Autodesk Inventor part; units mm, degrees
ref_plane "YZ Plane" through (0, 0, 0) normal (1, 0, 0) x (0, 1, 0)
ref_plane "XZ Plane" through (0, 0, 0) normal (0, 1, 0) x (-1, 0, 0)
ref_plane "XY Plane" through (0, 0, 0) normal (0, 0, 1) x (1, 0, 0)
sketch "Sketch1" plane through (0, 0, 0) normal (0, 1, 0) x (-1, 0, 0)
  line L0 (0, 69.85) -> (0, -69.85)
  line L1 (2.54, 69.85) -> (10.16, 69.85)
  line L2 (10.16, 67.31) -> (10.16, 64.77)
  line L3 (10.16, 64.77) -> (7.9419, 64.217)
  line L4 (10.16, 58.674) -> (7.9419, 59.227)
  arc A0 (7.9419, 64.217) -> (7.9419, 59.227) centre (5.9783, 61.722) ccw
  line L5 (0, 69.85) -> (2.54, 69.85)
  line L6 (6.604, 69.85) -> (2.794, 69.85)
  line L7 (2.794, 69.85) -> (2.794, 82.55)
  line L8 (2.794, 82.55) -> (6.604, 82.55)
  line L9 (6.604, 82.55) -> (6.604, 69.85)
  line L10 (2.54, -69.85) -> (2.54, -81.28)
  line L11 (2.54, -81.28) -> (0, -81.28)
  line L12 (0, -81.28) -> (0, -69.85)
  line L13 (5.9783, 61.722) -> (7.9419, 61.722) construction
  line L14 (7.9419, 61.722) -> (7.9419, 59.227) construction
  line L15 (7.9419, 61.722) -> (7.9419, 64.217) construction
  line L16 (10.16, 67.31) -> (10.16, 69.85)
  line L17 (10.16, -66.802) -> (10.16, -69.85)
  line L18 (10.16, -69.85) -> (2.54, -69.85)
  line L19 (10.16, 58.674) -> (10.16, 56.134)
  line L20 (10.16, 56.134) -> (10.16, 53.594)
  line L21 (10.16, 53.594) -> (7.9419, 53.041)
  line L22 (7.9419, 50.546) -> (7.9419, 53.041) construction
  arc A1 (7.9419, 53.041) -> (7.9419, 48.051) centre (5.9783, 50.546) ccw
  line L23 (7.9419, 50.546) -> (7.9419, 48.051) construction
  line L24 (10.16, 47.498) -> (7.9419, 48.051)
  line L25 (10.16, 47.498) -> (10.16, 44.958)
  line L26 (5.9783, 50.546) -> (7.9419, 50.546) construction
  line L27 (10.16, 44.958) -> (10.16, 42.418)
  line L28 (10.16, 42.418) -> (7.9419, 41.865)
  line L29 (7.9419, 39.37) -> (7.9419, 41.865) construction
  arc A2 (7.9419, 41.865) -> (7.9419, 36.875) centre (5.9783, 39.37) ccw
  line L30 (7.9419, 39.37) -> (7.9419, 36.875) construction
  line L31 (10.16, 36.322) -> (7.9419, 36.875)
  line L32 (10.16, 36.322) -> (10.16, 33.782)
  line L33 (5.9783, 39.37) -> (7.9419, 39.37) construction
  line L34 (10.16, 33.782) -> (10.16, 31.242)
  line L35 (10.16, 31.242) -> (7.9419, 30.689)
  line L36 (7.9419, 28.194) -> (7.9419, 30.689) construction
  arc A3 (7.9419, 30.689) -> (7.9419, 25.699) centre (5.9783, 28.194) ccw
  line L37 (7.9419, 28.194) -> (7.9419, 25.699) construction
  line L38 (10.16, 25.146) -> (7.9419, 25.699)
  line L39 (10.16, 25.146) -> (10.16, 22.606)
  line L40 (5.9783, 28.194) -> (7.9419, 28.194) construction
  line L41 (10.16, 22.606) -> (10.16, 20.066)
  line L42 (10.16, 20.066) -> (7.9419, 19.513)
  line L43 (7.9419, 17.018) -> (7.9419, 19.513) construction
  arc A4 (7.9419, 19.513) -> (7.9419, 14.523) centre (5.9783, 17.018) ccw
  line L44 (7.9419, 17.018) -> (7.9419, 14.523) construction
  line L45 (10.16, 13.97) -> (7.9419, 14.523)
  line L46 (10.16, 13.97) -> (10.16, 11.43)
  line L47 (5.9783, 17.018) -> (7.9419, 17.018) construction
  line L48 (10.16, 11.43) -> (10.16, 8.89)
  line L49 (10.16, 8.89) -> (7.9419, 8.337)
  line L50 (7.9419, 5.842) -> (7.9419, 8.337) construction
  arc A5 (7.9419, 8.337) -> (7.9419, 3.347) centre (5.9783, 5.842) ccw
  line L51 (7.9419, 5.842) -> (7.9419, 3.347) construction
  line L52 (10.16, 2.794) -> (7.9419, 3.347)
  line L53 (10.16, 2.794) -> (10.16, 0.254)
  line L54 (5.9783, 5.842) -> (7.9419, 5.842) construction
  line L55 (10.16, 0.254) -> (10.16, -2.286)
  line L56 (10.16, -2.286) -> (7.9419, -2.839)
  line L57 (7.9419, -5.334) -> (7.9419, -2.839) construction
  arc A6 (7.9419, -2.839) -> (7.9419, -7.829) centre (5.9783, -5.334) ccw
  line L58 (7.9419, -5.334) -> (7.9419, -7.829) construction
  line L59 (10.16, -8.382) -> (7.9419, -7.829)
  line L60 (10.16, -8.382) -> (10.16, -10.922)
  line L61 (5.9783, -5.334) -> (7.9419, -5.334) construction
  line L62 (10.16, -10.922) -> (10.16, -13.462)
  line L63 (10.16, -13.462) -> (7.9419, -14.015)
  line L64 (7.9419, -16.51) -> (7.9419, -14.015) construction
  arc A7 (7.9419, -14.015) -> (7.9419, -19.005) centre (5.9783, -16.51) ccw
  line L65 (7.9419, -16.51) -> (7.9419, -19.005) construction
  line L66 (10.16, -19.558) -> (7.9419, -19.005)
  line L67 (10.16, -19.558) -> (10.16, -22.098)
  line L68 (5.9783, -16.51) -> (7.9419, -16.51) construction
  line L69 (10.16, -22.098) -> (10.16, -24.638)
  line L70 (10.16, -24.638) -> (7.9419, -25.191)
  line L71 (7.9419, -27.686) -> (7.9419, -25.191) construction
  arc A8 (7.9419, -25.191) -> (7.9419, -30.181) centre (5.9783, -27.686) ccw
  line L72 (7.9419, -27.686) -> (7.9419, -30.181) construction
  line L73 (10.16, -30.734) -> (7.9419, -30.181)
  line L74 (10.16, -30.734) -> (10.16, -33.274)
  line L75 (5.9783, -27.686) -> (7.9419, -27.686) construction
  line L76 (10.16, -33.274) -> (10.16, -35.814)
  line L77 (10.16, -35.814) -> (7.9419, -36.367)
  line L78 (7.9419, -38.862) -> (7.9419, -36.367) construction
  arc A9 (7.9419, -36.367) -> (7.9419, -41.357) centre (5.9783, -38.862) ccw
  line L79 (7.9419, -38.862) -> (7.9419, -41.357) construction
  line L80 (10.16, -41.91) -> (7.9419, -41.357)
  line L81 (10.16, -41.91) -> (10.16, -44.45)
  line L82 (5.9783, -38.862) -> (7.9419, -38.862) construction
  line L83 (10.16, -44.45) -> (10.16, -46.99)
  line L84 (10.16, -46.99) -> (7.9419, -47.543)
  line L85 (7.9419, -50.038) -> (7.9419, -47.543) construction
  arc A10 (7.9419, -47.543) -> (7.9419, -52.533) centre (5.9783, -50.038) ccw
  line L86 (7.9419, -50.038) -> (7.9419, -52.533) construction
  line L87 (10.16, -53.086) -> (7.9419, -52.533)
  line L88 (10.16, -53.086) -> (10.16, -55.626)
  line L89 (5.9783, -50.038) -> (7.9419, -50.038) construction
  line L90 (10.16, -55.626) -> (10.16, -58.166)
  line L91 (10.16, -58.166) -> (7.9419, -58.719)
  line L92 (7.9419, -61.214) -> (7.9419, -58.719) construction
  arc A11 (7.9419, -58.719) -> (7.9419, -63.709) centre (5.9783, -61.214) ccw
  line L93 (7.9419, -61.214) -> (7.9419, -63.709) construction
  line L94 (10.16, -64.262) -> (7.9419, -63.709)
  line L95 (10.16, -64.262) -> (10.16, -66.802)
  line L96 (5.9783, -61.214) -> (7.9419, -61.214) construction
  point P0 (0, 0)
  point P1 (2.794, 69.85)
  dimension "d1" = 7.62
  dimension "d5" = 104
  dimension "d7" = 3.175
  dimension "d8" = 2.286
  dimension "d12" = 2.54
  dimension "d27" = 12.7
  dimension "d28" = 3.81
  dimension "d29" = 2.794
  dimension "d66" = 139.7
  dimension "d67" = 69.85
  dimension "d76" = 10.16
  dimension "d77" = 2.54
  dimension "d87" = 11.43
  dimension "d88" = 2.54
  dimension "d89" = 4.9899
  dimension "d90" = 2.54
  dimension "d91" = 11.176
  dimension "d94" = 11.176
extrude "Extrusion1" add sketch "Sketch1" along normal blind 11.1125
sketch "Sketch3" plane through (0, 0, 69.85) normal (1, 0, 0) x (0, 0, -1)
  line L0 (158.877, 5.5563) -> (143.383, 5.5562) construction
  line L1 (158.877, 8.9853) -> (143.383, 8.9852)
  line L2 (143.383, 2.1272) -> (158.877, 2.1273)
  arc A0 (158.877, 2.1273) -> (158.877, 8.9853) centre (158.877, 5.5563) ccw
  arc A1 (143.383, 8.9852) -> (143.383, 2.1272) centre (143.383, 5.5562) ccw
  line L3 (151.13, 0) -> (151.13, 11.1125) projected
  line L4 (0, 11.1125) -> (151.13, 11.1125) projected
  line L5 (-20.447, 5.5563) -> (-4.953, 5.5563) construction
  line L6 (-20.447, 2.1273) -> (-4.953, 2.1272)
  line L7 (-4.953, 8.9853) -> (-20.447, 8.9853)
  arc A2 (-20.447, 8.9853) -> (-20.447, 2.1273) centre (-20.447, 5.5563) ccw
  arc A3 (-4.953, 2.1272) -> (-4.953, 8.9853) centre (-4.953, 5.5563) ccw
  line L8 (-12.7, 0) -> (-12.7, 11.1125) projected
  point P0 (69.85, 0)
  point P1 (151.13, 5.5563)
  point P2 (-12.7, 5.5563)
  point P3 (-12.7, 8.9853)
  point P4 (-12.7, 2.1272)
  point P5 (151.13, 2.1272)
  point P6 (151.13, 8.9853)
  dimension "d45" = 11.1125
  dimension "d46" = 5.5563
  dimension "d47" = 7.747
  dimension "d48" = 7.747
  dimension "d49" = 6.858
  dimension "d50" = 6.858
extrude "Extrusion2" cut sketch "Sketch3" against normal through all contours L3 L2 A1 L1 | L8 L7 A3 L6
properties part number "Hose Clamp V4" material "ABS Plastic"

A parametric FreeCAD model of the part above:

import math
import FreeCAD as App
import Part
import Sketcher
from FreeCAD import Vector
Q = App.Units.Quantity

doc = App.newDocument("Part")
body = doc.addObject("PartDesign::Body", "Body")

# Sketch on XZ plane
sketch1 = body.newObject("Sketcher::SketchObject", "Sketch")
sketch1.AttachmentSupport = (doc.getObject("XZ_Plane"), [""])
sketch1.MapMode = "FlatFace"
sketch1.addGeometry([
    Part.LineSegment(Vector(0, 69.85, 0), Vector(0, -81.28, 0)),  # 0
    Part.LineSegment(Vector(0, -81.28, 0), Vector(-2.54, -81.28, 0)),  # 1
    Part.LineSegment(Vector(-2.54, -81.28, 0), Vector(-2.54, -69.85, 0)),  # 2
    Part.LineSegment(Vector(-2.54, -69.85, 0), Vector(-10.16, -69.85, 0)),  # 3
    Part.LineSegment(Vector(-10.16, -69.85, 0), Vector(-10.16, -64.262, 0)),  # 4
    Part.LineSegment(Vector(-10.16, -64.262, 0), Vector(-7.9419, -63.709, 0)),  # 5
    Part.ArcOfCircle(Part.Circle(Vector(-5.9783, -61.214, 0), Vector(0, 0, 1), 3.17502), math.radians(-128.203242), math.radians(128.203242)),  # 6
    Part.LineSegment(Vector(-7.9419, -58.719, 0), Vector(-10.16, -58.166, 0)),  # 7
    Part.LineSegment(Vector(-10.16, -58.166, 0), Vector(-10.16, -53.086, 0)),  # 8
    Part.LineSegment(Vector(-10.16, -53.086, 0), Vector(-7.9419, -52.533, 0)),  # 9
    Part.ArcOfCircle(Part.Circle(Vector(-5.9783, -50.038, 0), Vector(0, 0, 1), 3.17502), math.radians(-128.203242), math.radians(128.203242)),  # 10
    Part.LineSegment(Vector(-7.9419, -47.543, 0), Vector(-10.16, -46.99, 0)),  # 11
    Part.LineSegment(Vector(-10.16, -46.99, 0), Vector(-10.16, -41.91, 0)),  # 12
    Part.LineSegment(Vector(-10.16, -41.91, 0), Vector(-7.9419, -41.357, 0)),  # 13
    Part.ArcOfCircle(Part.Circle(Vector(-5.9783, -38.862, 0), Vector(0, 0, 1), 3.17502), math.radians(-128.203242), math.radians(128.203242)),  # 14
    Part.LineSegment(Vector(-7.9419, -36.367, 0), Vector(-10.16, -35.814, 0)),  # 15
    Part.LineSegment(Vector(-10.16, -35.814, 0), Vector(-10.16, -30.734, 0)),  # 16
    Part.LineSegment(Vector(-10.16, -30.734, 0), Vector(-7.9419, -30.181, 0)),  # 17
    Part.ArcOfCircle(Part.Circle(Vector(-5.9783, -27.686, 0), Vector(0, 0, 1), 3.17502), math.radians(-128.203242), math.radians(128.203242)),  # 18
    Part.LineSegment(Vector(-7.9419, -25.191, 0), Vector(-10.16, -24.638, 0)),  # 19
    Part.LineSegment(Vector(-10.16, -24.638, 0), Vector(-10.16, -19.558, 0)),  # 20
    Part.LineSegment(Vector(-10.16, -19.558, 0), Vector(-7.9419, -19.005, 0)),  # 21
    Part.ArcOfCircle(Part.Circle(Vector(-5.9783, -16.51, 0), Vector(0, 0, 1), 3.17502), math.radians(-128.203242), math.radians(128.203242)),  # 22
    Part.LineSegment(Vector(-7.9419, -14.015, 0), Vector(-10.16, -13.462, 0)),  # 23
    Part.LineSegment(Vector(-10.16, -13.462, 0), Vector(-10.16, -8.382, 0)),  # 24
    Part.LineSegment(Vector(-10.16, -8.382, 0), Vector(-7.9419, -7.829, 0)),  # 25
    Part.ArcOfCircle(Part.Circle(Vector(-5.9783, -5.334, 0), Vector(0, 0, 1), 3.17502), math.radians(-128.203242), math.radians(128.203242)),  # 26
    Part.LineSegment(Vector(-7.9419, -2.839, 0), Vector(-10.16, -2.286, 0)),  # 27
    Part.LineSegment(Vector(-10.16, -2.286, 0), Vector(-10.16, 2.794, 0)),  # 28
    Part.LineSegment(Vector(-10.16, 2.794, 0), Vector(-7.9419, 3.347, 0)),  # 29
    Part.ArcOfCircle(Part.Circle(Vector(-5.9783, 5.842, 0), Vector(0, 0, 1), 3.17502), math.radians(-128.203242), math.radians(128.203242)),  # 30
    Part.LineSegment(Vector(-7.9419, 8.337, 0), Vector(-10.16, 8.89, 0)),  # 31
    Part.LineSegment(Vector(-10.16, 8.89, 0), Vector(-10.16, 13.97, 0)),  # 32
    Part.LineSegment(Vector(-10.16, 13.97, 0), Vector(-7.9419, 14.523, 0)),  # 33
    Part.ArcOfCircle(Part.Circle(Vector(-5.9783, 17.018, 0), Vector(0, 0, 1), 3.17502), math.radians(-128.203242), math.radians(128.203242)),  # 34
    Part.LineSegment(Vector(-7.9419, 19.513, 0), Vector(-10.16, 20.066, 0)),  # 35
    Part.LineSegment(Vector(-10.16, 20.066, 0), Vector(-10.16, 25.146, 0)),  # 36
    Part.LineSegment(Vector(-10.16, 25.146, 0), Vector(-7.9419, 25.699, 0)),  # 37
    Part.ArcOfCircle(Part.Circle(Vector(-5.9783, 28.194, 0), Vector(0, 0, 1), 3.17502), math.radians(-128.203242), math.radians(128.203242)),  # 38
    Part.LineSegment(Vector(-7.9419, 30.689, 0), Vector(-10.16, 31.242, 0)),  # 39
    Part.LineSegment(Vector(-10.16, 31.242, 0), Vector(-10.16, 36.322, 0)),  # 40
    Part.LineSegment(Vector(-10.16, 36.322, 0), Vector(-7.9419, 36.875, 0)),  # 41
    Part.ArcOfCircle(Part.Circle(Vector(-5.9783, 39.37, 0), Vector(0, 0, 1), 3.17502), math.radians(-128.203242), math.radians(128.203242)),  # 42
    Part.LineSegment(Vector(-7.9419, 41.865, 0), Vector(-10.16, 42.418, 0)),  # 43
    Part.LineSegment(Vector(-10.16, 42.418, 0), Vector(-10.16, 47.498, 0)),  # 44
    Part.LineSegment(Vector(-10.16, 47.498, 0), Vector(-7.9419, 48.051, 0)),  # 45
    Part.ArcOfCircle(Part.Circle(Vector(-5.9783, 50.546, 0), Vector(0, 0, 1), 3.17502), math.radians(-128.203242), math.radians(128.203242)),  # 46
    Part.LineSegment(Vector(-7.9419, 53.041, 0), Vector(-10.16, 53.594, 0)),  # 47
    Part.LineSegment(Vector(-10.16, 53.594, 0), Vector(-10.16, 58.674, 0)),  # 48
    Part.LineSegment(Vector(-10.16, 58.674, 0), Vector(-7.9419, 59.227, 0)),  # 49
    Part.ArcOfCircle(Part.Circle(Vector(-5.9783, 61.722, 0), Vector(0, 0, 1), 3.17502), math.radians(-128.203242), math.radians(128.203242)),  # 50
    Part.LineSegment(Vector(-7.9419, 64.217, 0), Vector(-10.16, 64.77, 0)),  # 51
    Part.LineSegment(Vector(-10.16, 64.77, 0), Vector(-10.16, 69.85, 0)),  # 52
    Part.LineSegment(Vector(-10.16, 69.85, 0), Vector(-6.604, 69.85, 0)),  # 53
    Part.LineSegment(Vector(-6.604, 69.85, 0), Vector(-6.604, 82.55, 0)),  # 54
    Part.LineSegment(Vector(-6.604, 82.55, 0), Vector(-2.794, 82.55, 0)),  # 55
    Part.LineSegment(Vector(-2.794, 82.55, 0), Vector(-2.794, 69.85, 0)),  # 56
    Part.LineSegment(Vector(-2.794, 69.85, 0), Vector(0, 69.85, 0)),  # 57
], False)
sketch1.addConstraint([
    Sketcher.Constraint("Coincident", 0, 2, 1, 1),
    Sketcher.Constraint("Coincident", 1, 2, 2, 1),
    Sketcher.Constraint("Coincident", 2, 2, 3, 1),
    Sketcher.Constraint("Coincident", 3, 2, 4, 1),
    Sketcher.Constraint("Coincident", 4, 2, 5, 1),
    Sketcher.Constraint("Coincident", 5, 2, 6, 1),
    Sketcher.Constraint("Coincident", 6, 2, 7, 1),
    Sketcher.Constraint("Coincident", 7, 2, 8, 1),
    Sketcher.Constraint("Coincident", 8, 2, 9, 1),
    Sketcher.Constraint("Coincident", 9, 2, 10, 1),
    Sketcher.Constraint("Coincident", 10, 2, 11, 1),
    Sketcher.Constraint("Coincident", 11, 2, 12, 1),
    Sketcher.Constraint("Coincident", 12, 2, 13, 1),
    Sketcher.Constraint("Coincident", 13, 2, 14, 1),
    Sketcher.Constraint("Coincident", 14, 2, 15, 1),
    Sketcher.Constraint("Coincident", 15, 2, 16, 1),
    Sketcher.Constraint("Coincident", 16, 2, 17, 1),
    Sketcher.Constraint("Coincident", 17, 2, 18, 1),
    Sketcher.Constraint("Coincident", 18, 2, 19, 1),
    Sketcher.Constraint("Coincident", 19, 2, 20, 1),
    Sketcher.Constraint("Coincident", 20, 2, 21, 1),
    Sketcher.Constraint("Coincident", 21, 2, 22, 1),
    Sketcher.Constraint("Coincident", 22, 2, 23, 1),
    Sketcher.Constraint("Coincident", 23, 2, 24, 1),
    Sketcher.Constraint("Coincident", 24, 2, 25, 1),
    Sketcher.Constraint("Coincident", 25, 2, 26, 1),
    Sketcher.Constraint("Coincident", 26, 2, 27, 1),
    Sketcher.Constraint("Coincident", 27, 2, 28, 1),
    Sketcher.Constraint("Coincident", 28, 2, 29, 1),
    Sketcher.Constraint("Coincident", 29, 2, 30, 1),
    Sketcher.Constraint("Coincident", 30, 2, 31, 1),
    Sketcher.Constraint("Coincident", 31, 2, 32, 1),
    Sketcher.Constraint("Coincident", 32, 2, 33, 1),
    Sketcher.Constraint("Coincident", 33, 2, 34, 1),
    Sketcher.Constraint("Coincident", 34, 2, 35, 1),
    Sketcher.Constraint("Coincident", 35, 2, 36, 1),
    Sketcher.Constraint("Coincident", 36, 2, 37, 1),
    Sketcher.Constraint("Coincident", 37, 2, 38, 1),
    Sketcher.Constraint("Coincident", 38, 2, 39, 1),
    Sketcher.Constraint("Coincident", 39, 2, 40, 1),
    Sketcher.Constraint("Coincident", 40, 2, 41, 1),
    Sketcher.Constraint("Coincident", 41, 2, 42, 1),
    Sketcher.Constraint("Coincident", 42, 2, 43, 1),
    Sketcher.Constraint("Coincident", 43, 2, 44, 1),
    Sketcher.Constraint("Coincident", 44, 2, 45, 1),
    Sketcher.Constraint("Coincident", 45, 2, 46, 1),
    Sketcher.Constraint("Coincident", 46, 2, 47, 1),
    Sketcher.Constraint("Coincident", 47, 2, 48, 1),
    Sketcher.Constraint("Coincident", 48, 2, 49, 1),
    Sketcher.Constraint("Coincident", 49, 2, 50, 1),
    Sketcher.Constraint("Coincident", 50, 2, 51, 1),
    Sketcher.Constraint("Coincident", 51, 2, 52, 1),
    Sketcher.Constraint("Coincident", 52, 2, 53, 1),
    Sketcher.Constraint("Coincident", 53, 2, 54, 1),
    Sketcher.Constraint("Coincident", 54, 2, 55, 1),
    Sketcher.Constraint("Coincident", 55, 2, 56, 1),
    Sketcher.Constraint("Coincident", 56, 2, 57, 1),
    Sketcher.Constraint("Coincident", 57, 2, 0, 1),
    Sketcher.Constraint("Vertical", 0),
    Sketcher.Constraint("Horizontal", 1),
    Sketcher.Constraint("Vertical", 2),
    Sketcher.Constraint("Horizontal", 3),
    Sketcher.Constraint("Vertical", 4),
    Sketcher.Constraint("Vertical", 8),
    Sketcher.Constraint("Vertical", 12),
    Sketcher.Constraint("Vertical", 16),
    Sketcher.Constraint("Vertical", 20),
    Sketcher.Constraint("Vertical", 24),
    Sketcher.Constraint("Vertical", 28),
    Sketcher.Constraint("Vertical", 32),
    Sketcher.Constraint("Vertical", 36),
    Sketcher.Constraint("Vertical", 40),
    Sketcher.Constraint("Vertical", 44),
    Sketcher.Constraint("Vertical", 48),
    Sketcher.Constraint("Vertical", 52),
    Sketcher.Constraint("Horizontal", 53),
    Sketcher.Constraint("Vertical", 54),
    Sketcher.Constraint("Horizontal", 55),
    Sketcher.Constraint("Vertical", 56),
    Sketcher.Constraint("Horizontal", 57),
    Sketcher.Constraint("Equal", 6, 10),
    Sketcher.Constraint("Equal", 10, 14),
    Sketcher.Constraint("Equal", 14, 18),
    Sketcher.Constraint("Equal", 18, 22),
    Sketcher.Constraint("Equal", 22, 26),
    Sketcher.Constraint("Equal", 26, 30),
    Sketcher.Constraint("Equal", 30, 34),
    Sketcher.Constraint("Equal", 34, 38),
    Sketcher.Constraint("Equal", 38, 42),
    Sketcher.Constraint("Equal", 42, 46),
    Sketcher.Constraint("Equal", 46, 50),
    Sketcher.Constraint("Symmetric", 3, 2, 52, 2, -1),
    Sketcher.Constraint("PointOnObject", 0, 2, -2),
    Sketcher.Constraint("Parallel", 5, 9),
    Sketcher.Constraint("Parallel", 7, 11),
    Sketcher.Constraint("Parallel", 9, 13),
    Sketcher.Constraint("Parallel", 11, 15),
    Sketcher.Constraint("Parallel", 13, 17),
    Sketcher.Constraint("Parallel", 15, 19),
    Sketcher.Constraint("Parallel", 17, 21),
    Sketcher.Constraint("Parallel", 19, 23),
    Sketcher.Constraint("Parallel", 21, 25),
    Sketcher.Constraint("Parallel", 23, 27),
    Sketcher.Constraint("Parallel", 25, 29),
    Sketcher.Constraint("Parallel", 27, 31),
    Sketcher.Constraint("Parallel", 29, 33),
    Sketcher.Constraint("Parallel", 31, 35),
    Sketcher.Constraint("Parallel", 33, 37),
    Sketcher.Constraint("Parallel", 35, 39),
    Sketcher.Constraint("Parallel", 37, 41),
    Sketcher.Constraint("Parallel", 39, 43),
    Sketcher.Constraint("Parallel", 41, 45),
    Sketcher.Constraint("Parallel", 43, 47),
    Sketcher.Constraint("Parallel", 45, 49),
    Sketcher.Constraint("Parallel", 47, 51),
    Sketcher.Constraint("Horizontal", 53, 2, 56, 2),
    Sketcher.Constraint("Vertical", 6, 3, 10, 3),
    Sketcher.Constraint("Vertical", 10, 3, 14, 3),
    Sketcher.Constraint("Vertical", 14, 3, 18, 3),
    Sketcher.Constraint("Vertical", 18, 3, 22, 3),
    Sketcher.Constraint("Vertical", 22, 3, 26, 3),
    Sketcher.Constraint("Vertical", 26, 3, 30, 3),
    Sketcher.Constraint("Vertical", 30, 3, 34, 3),
    Sketcher.Constraint("Vertical", 34, 3, 38, 3),
    Sketcher.Constraint("Vertical", 38, 3, 42, 3),
    Sketcher.Constraint("Vertical", 42, 3, 46, 3),
    Sketcher.Constraint("Vertical", 46, 3, 50, 3),
    Sketcher.Constraint("Vertical", 5, 2, 6, 2),
    Sketcher.Constraint("Vertical", 4, 2, 7, 2),
    Sketcher.Constraint("Vertical", 6, 2, 9, 2),
    Sketcher.Constraint("Vertical", 9, 2, 10, 2),
    Sketcher.Constraint("Vertical", 8, 2, 11, 2),
    Sketcher.Constraint("Vertical", 10, 2, 13, 2),
    Sketcher.Constraint("Vertical", 13, 2, 14, 2),
    Sketcher.Constraint("Vertical", 12, 2, 15, 2),
    Sketcher.Constraint("Vertical", 14, 2, 17, 2),
    Sketcher.Constraint("Vertical", 17, 2, 18, 2),
    Sketcher.Constraint("Vertical", 16, 2, 19, 2),
    Sketcher.Constraint("Vertical", 18, 2, 21, 2),
    Sketcher.Constraint("Vertical", 21, 2, 22, 2),
    Sketcher.Constraint("Vertical", 20, 2, 23, 2),
    Sketcher.Constraint("Vertical", 22, 2, 25, 2),
    Sketcher.Constraint("Vertical", 25, 2, 26, 2),
    Sketcher.Constraint("Vertical", 24, 2, 27, 2),
    Sketcher.Constraint("Vertical", 26, 2, 29, 2),
    Sketcher.Constraint("Vertical", 29, 2, 30, 2),
    Sketcher.Constraint("Vertical", 28, 2, 31, 2),
    Sketcher.Constraint("Vertical", 30, 2, 33, 2),
    Sketcher.Constraint("Vertical", 33, 2, 34, 2),
    Sketcher.Constraint("Vertical", 32, 2, 35, 2),
    Sketcher.Constraint("Vertical", 34, 2, 37, 2),
    Sketcher.Constraint("Vertical", 37, 2, 38, 2),
    Sketcher.Constraint("Vertical", 36, 2, 39, 2),
    Sketcher.Constraint("Vertical", 38, 2, 41, 2),
    Sketcher.Constraint("Vertical", 41, 2, 42, 2),
    Sketcher.Constraint("Vertical", 40, 2, 43, 2),
    Sketcher.Constraint("Vertical", 42, 2, 45, 2),
    Sketcher.Constraint("Vertical", 45, 2, 46, 2),
    Sketcher.Constraint("Vertical", 44, 2, 47, 2),
    Sketcher.Constraint("Vertical", 46, 2, 49, 2),
    Sketcher.Constraint("Vertical", 49, 2, 50, 2),
    Sketcher.Constraint("Equal", 8, 12),
    Sketcher.Constraint("Equal", 12, 16),
    Sketcher.Constraint("Equal", 16, 20),
    Sketcher.Constraint("Equal", 20, 24),
    Sketcher.Constraint("Equal", 24, 28),
    Sketcher.Constraint("Equal", 28, 32),
    Sketcher.Constraint("Equal", 32, 36),
    Sketcher.Constraint("Equal", 36, 40),
    Sketcher.Constraint("Equal", 40, 44),
    Sketcher.Constraint("Equal", 44, 48),
    Sketcher.Constraint("Equal", 48, 52),
    Sketcher.Constraint("Equal", 5, 7),
    Sketcher.Constraint("DistanceX", 1, 2, 1, 1, Q("0.1 in")),
    Sketcher.Constraint("DistanceX", 3, 2, 3, 1, Q("0.3 in")),
    Sketcher.Constraint("DistanceY", 54, 1, 54, 2, Q("0.5 in")),
    Sketcher.Constraint("Radius", 6, Q("0.125 in")),
    Sketcher.Constraint("DistanceX", 55, 1, 55, 2, Q("0.15 in")),
    Sketcher.Constraint("DistanceX", 57, 1, 57, 2, Q("0.11 in")),
    Sketcher.Constraint("DistanceY", 2, 1, 2, 2, Q("0.45 in")),
    Sketcher.Constraint("Distance", 5, Q("0.09 in")),
    Sketcher.Constraint("DistanceY", 2, 2, -1, 1, Q("2.75 in")),
    Sketcher.Constraint("DistanceY", 27, 2, -1, 1, Q("0.09 in")),
    Sketcher.Constraint("DistanceY", -1, 1, 28, 2, Q("0.11 in")),
    Sketcher.Constraint("Angle", 5, Q("13.9992 deg")),
])
pad1 = body.newObject("PartDesign::Pad", "Pad")
pad1.Profile = sketch1
pad1.Length = Q("0.4375 in")
pad1.Reversed = True

# Sketch on YZ plane
sketch2 = body.newObject("Sketcher::SketchObject", "Sketch001")
sketch2.AttachmentSupport = (doc.getObject("YZ_Plane"), [""])
sketch2.MapMode = "FlatFace"
sketch2.addGeometry([
    Part.LineSegment(Vector(2.12725, -81.28, 0), Vector(8.98525, -81.28, 0)),  # 0
    Part.LineSegment(Vector(8.98525, -81.28, 0), Vector(8.9852, -73.533, 0)),  # 1
    Part.ArcOfCircle(Part.Circle(Vector(5.5562, -73.533, 0), Vector(0, 0, 1), 3.429), math.radians(0), math.radians(180)),  # 2
    Part.LineSegment(Vector(2.1272, -73.533, 0), Vector(2.12725, -81.28, 0)),  # 3
    Part.LineSegment(Vector(8.9853, 82.55, 0), Vector(2.12725, 82.55, 0)),  # 4
    Part.LineSegment(Vector(2.12725, 82.55, 0), Vector(2.1272, 74.803, 0)),  # 5
    Part.ArcOfCircle(Part.Circle(Vector(5.5563, 74.803, 0), Vector(0, 0, 1), 3.4291), math.radians(180), math.radians(360)),  # 6
    Part.LineSegment(Vector(8.9853, 74.803, 0), Vector(8.9853, 82.55, 0)),  # 7
], False)
sketch2.addConstraint([
    Sketcher.Constraint("Coincident", 0, 2, 1, 1),
    Sketcher.Constraint("Tangent", 1, 2, 2, 1),
    Sketcher.Constraint("Tangent", 2, 2, 3, 1),
    Sketcher.Constraint("Coincident", 3, 2, 0, 1),
    Sketcher.Constraint("Coincident", 4, 2, 5, 1),
    Sketcher.Constraint("Tangent", 5, 2, 6, 1),
    Sketcher.Constraint("Tangent", 6, 2, 7, 1),
    Sketcher.Constraint("Coincident", 7, 2, 4, 1),
    Sketcher.Constraint("Horizontal", 0),
    Sketcher.Constraint("Vertical", 1),
    Sketcher.Constraint("Vertical", 3),
    Sketcher.Constraint("Horizontal", 4),
    Sketcher.Constraint("Vertical", 5),
    Sketcher.Constraint("Vertical", 7),
    Sketcher.Constraint("Equal", 2, 6),
    Sketcher.Constraint("Vertical", 2, 3, 6, 3),
    Sketcher.Constraint("Equal", 3, 5),
    Sketcher.Constraint("Radius", 2, Q("0.135 in")),
    Sketcher.Constraint("DistanceY", 1, 1, 1, 2, Q("0.305 in")),
    Sketcher.Constraint("DistanceX", -1, 1, 2, 3, Q("0.218748 in")),
    Sketcher.Constraint("DistanceY", 0, 2, -1, 1, Q("3.2 in")),
    Sketcher.Constraint("DistanceY", -1, 1, 4, 2, Q("3.25 in")),
])
pocket1 = body.newObject("PartDesign::Pocket", "Pocket")
pocket1.Profile = sketch2
pocket1.Type = "ThroughAll"

doc.recompute()
